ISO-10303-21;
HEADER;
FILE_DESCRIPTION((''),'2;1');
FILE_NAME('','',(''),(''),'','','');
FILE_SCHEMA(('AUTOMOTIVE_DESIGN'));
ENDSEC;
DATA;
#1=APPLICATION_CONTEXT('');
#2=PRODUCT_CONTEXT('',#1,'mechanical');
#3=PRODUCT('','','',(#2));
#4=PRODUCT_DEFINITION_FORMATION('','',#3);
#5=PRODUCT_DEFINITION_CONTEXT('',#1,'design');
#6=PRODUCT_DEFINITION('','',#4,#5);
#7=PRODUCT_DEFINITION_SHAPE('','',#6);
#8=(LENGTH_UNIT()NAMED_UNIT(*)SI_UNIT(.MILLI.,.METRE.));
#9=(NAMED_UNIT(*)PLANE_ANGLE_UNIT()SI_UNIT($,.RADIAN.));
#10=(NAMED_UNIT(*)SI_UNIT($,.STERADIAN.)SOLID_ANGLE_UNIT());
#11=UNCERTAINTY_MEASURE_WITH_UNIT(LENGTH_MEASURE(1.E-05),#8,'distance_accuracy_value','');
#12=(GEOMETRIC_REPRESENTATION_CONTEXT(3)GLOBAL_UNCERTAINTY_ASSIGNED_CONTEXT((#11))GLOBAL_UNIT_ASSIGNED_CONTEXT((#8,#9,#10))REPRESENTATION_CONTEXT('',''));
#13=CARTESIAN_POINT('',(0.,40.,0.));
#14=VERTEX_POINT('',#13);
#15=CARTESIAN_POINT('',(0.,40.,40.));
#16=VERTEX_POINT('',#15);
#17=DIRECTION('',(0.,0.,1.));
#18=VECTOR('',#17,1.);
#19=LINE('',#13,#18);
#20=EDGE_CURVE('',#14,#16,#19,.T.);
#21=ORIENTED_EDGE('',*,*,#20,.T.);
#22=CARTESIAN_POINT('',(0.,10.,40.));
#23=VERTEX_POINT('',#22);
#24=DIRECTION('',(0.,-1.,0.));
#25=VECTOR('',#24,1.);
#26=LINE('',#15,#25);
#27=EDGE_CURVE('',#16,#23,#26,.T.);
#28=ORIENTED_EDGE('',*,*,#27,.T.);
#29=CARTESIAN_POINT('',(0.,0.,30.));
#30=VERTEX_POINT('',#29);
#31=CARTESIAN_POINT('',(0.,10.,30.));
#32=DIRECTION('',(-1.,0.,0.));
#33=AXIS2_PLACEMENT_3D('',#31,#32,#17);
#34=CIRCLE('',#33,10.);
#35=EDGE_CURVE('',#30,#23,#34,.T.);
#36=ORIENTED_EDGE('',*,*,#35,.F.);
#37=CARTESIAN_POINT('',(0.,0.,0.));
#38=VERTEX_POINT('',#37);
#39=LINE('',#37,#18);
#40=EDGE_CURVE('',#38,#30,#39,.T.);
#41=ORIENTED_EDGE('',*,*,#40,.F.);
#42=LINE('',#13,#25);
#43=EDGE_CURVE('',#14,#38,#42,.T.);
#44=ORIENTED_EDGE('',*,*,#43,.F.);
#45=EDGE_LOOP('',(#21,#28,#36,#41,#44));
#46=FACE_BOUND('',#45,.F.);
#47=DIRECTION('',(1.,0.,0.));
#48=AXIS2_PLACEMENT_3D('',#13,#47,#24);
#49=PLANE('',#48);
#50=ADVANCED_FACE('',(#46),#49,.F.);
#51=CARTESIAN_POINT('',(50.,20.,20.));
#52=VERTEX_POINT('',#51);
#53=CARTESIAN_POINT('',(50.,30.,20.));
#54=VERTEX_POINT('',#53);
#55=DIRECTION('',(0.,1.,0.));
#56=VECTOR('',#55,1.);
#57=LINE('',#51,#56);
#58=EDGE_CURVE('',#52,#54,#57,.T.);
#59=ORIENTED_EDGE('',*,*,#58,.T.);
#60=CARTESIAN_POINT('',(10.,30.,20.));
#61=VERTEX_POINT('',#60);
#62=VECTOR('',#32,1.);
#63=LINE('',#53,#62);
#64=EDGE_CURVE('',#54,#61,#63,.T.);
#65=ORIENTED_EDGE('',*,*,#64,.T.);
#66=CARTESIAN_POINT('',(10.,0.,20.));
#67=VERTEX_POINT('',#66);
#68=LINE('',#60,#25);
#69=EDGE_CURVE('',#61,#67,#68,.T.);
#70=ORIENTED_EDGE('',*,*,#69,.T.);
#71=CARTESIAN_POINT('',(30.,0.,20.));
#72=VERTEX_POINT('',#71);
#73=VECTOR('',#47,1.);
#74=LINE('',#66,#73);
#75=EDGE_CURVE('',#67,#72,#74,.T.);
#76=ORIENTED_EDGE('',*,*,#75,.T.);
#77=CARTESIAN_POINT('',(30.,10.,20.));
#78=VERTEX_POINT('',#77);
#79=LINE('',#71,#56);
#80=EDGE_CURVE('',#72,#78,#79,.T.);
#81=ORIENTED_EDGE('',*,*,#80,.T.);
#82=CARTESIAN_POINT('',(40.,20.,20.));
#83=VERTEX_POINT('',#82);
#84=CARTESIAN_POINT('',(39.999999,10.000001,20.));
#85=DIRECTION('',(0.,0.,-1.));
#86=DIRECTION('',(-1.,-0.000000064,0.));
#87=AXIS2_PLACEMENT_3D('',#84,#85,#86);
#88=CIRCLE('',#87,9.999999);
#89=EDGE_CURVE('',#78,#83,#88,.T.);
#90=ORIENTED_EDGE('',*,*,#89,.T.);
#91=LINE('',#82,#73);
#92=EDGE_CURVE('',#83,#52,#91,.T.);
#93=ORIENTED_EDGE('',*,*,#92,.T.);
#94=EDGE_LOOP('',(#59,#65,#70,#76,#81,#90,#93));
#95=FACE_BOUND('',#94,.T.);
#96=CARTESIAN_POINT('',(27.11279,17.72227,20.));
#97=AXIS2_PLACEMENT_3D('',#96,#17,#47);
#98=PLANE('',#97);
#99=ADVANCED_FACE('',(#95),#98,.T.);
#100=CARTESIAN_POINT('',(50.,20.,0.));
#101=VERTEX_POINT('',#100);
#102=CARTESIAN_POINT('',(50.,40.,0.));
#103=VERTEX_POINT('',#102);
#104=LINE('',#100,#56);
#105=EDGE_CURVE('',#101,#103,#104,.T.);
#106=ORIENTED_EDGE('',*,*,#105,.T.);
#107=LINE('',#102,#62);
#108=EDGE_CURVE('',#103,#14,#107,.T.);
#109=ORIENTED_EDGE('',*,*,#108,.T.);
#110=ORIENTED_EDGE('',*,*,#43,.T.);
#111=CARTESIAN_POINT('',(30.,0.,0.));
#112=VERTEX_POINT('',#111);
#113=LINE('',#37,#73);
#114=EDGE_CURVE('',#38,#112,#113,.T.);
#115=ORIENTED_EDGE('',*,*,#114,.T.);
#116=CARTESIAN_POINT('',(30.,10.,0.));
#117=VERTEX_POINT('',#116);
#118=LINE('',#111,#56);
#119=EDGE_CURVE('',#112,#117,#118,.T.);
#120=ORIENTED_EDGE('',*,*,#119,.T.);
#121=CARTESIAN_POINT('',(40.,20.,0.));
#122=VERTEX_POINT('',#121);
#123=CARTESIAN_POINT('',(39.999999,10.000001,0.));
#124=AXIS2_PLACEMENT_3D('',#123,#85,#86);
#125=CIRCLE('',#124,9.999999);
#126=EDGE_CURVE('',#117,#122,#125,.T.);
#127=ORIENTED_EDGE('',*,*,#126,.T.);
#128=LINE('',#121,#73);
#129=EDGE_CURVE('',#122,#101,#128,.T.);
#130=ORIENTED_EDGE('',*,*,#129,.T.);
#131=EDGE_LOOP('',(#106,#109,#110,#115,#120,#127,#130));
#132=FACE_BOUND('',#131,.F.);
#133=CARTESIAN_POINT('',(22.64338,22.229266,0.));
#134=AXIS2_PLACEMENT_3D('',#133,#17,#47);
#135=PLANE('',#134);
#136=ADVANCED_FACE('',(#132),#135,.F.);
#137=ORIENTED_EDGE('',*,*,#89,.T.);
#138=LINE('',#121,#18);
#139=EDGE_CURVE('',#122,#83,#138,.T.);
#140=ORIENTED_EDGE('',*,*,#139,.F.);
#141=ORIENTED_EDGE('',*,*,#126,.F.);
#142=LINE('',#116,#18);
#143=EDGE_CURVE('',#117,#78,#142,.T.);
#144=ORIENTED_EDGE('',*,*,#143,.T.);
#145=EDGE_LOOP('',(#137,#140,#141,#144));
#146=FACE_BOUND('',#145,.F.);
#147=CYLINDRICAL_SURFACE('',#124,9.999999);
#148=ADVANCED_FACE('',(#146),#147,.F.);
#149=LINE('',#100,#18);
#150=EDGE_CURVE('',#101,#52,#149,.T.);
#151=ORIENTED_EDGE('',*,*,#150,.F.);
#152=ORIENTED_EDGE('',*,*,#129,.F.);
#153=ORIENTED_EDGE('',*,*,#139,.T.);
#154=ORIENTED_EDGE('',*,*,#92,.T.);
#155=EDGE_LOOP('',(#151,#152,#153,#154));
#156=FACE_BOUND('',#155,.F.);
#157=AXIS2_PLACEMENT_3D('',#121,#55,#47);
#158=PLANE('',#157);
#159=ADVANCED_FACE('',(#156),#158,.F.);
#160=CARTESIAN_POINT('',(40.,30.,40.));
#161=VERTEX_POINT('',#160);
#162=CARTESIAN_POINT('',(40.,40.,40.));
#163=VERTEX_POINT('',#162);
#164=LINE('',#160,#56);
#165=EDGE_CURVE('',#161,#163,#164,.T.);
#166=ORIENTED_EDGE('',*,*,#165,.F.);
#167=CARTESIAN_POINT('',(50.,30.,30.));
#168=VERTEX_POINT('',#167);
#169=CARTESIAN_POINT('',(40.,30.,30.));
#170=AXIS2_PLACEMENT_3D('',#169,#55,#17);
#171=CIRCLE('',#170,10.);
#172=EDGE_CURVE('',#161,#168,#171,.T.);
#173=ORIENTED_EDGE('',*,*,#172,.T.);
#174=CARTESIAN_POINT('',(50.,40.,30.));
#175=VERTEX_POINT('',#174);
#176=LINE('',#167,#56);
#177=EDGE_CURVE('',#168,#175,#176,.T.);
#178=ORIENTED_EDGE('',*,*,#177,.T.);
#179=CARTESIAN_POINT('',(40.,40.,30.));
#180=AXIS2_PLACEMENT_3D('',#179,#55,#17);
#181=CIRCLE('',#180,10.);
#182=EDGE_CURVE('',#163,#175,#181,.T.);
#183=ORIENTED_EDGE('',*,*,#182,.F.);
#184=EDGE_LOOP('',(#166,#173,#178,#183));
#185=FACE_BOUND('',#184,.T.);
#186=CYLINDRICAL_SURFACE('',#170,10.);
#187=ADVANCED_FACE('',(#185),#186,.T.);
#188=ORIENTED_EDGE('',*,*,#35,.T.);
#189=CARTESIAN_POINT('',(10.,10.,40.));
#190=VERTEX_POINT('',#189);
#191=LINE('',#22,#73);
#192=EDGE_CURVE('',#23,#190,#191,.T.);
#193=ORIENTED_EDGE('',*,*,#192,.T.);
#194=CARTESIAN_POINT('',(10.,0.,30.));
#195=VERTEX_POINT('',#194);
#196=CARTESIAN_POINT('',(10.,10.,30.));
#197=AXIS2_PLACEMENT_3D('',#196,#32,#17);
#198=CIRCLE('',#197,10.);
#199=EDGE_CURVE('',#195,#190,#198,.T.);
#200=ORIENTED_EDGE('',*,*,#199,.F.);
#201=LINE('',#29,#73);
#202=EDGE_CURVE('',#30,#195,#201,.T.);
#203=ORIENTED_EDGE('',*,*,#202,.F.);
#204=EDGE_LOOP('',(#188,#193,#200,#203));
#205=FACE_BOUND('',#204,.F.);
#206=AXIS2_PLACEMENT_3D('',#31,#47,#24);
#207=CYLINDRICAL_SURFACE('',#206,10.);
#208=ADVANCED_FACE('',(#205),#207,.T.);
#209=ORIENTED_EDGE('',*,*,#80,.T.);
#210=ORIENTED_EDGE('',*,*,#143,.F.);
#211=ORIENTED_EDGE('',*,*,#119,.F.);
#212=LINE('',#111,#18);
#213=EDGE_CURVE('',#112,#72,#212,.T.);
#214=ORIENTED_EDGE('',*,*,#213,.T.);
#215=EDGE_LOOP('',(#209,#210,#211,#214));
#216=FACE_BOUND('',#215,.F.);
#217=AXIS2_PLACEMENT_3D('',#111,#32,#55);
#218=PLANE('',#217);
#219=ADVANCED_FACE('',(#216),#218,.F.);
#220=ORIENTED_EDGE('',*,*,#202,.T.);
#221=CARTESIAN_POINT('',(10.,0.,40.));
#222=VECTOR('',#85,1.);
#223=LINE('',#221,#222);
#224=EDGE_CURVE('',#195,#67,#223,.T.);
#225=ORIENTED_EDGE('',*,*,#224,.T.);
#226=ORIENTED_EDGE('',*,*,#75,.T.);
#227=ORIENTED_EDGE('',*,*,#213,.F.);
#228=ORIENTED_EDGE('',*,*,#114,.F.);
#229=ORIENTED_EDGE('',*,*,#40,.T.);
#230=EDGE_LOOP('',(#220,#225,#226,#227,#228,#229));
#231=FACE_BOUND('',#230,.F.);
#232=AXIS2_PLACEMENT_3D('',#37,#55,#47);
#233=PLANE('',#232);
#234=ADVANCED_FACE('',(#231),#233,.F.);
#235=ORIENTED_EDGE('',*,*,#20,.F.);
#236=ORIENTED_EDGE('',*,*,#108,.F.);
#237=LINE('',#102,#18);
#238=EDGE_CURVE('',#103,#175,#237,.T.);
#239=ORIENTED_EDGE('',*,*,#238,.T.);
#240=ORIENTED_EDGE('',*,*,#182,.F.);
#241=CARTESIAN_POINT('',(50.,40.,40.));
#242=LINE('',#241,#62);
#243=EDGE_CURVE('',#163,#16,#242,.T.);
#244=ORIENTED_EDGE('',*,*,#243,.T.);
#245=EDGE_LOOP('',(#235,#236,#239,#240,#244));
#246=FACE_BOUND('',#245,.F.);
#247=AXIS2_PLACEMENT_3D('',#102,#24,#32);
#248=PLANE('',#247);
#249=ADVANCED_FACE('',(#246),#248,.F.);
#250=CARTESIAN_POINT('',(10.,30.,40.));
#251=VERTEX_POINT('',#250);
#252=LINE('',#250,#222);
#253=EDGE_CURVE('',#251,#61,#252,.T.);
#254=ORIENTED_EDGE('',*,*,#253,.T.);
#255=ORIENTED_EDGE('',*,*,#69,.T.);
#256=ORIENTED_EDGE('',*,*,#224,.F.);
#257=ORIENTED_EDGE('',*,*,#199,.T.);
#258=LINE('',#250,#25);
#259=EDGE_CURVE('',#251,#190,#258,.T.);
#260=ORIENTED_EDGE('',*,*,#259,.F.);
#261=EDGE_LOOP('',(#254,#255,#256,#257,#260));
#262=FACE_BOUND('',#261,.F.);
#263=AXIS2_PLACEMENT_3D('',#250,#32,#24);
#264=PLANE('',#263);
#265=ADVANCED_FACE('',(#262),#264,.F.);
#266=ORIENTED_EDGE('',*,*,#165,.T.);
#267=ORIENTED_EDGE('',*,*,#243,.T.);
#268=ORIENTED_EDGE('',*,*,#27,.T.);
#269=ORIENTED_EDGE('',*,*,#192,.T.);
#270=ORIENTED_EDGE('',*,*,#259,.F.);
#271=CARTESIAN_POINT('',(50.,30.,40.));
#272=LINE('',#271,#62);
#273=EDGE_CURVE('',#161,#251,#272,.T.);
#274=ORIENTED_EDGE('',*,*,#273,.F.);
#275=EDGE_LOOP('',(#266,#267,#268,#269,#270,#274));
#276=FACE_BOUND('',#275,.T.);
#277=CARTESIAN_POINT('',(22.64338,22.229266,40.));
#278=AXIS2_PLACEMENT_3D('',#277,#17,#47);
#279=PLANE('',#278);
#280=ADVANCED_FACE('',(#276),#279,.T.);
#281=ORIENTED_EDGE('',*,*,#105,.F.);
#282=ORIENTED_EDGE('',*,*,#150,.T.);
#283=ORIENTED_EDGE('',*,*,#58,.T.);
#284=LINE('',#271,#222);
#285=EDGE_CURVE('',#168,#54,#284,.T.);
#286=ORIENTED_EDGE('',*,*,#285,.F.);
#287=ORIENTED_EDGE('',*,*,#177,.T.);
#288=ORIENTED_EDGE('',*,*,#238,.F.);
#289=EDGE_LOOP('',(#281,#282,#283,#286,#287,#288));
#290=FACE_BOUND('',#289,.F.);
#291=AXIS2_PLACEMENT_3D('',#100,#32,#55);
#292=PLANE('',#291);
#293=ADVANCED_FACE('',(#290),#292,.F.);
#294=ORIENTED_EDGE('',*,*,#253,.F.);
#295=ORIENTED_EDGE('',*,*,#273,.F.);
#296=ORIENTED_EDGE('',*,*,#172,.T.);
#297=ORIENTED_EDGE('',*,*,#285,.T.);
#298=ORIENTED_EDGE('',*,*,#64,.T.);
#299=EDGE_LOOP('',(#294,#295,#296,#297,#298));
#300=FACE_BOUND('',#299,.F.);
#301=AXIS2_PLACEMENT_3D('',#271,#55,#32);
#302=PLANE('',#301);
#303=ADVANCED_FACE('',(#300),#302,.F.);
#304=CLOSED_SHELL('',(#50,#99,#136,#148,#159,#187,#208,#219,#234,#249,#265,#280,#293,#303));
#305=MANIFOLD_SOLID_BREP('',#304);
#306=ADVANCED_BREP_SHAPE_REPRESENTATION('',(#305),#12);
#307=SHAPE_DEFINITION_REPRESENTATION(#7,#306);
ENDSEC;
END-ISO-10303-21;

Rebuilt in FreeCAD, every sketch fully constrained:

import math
import FreeCAD as App
import Part
import Sketcher


def edges_at(feature, points):
    """Names of the edges that pass closest to the given points."""
    edges = feature.Shape.Edges
    near = lambda p: min(range(len(edges)), key=lambda i: edges[i].distToShape(Part.Vertex(*p))[0])
    return sorted({f"Edge{near(p) + 1}" for p in points})

doc = App.newDocument("Part")
body = doc.addObject("PartDesign::Body", "Body")

# Sketch on XY plane
sketch1 = body.newObject("Sketcher::SketchObject", "Sketch")
sketch1.AttachmentSupport = (doc.getObject("XY_Plane"), [""])
sketch1.MapMode = "FlatFace"
sketch1.addGeometry(Part.LineSegment(App.Vector(0, 40, 0), App.Vector(0, 0, 0)), False)
sketch1.addGeometry(Part.LineSegment(App.Vector(0, 0, 0), App.Vector(30, 0, 0)), False)
sketch1.addGeometry(Part.LineSegment(App.Vector(30, 0, 0), App.Vector(30, 10, 0)), False)
sketch1.addGeometry(Part.ArcOfCircle(Part.Circle(App.Vector(40, 10, 0), App.Vector(0, 0, 1), 10), math.radians(90), math.radians(180)), False)
sketch1.addGeometry(Part.LineSegment(App.Vector(40, 20, 0), App.Vector(50, 20, 0)), False)
sketch1.addGeometry(Part.LineSegment(App.Vector(50, 20, 0), App.Vector(50, 40, 0)), False)
sketch1.addGeometry(Part.LineSegment(App.Vector(50, 40, 0), App.Vector(0, 40, 0)), False)
sketch1.addConstraint(Sketcher.Constraint("Coincident", 0, 2, 1, 1))
sketch1.addConstraint(Sketcher.Constraint("Coincident", 1, 2, 2, 1))
sketch1.addConstraint(Sketcher.Constraint("Tangent", 2, 2, 3, 2))
sketch1.addConstraint(Sketcher.Constraint("Tangent", 3, 1, 4, 1))
sketch1.addConstraint(Sketcher.Constraint("Coincident", 4, 2, 5, 1))
sketch1.addConstraint(Sketcher.Constraint("Coincident", 5, 2, 6, 1))
sketch1.addConstraint(Sketcher.Constraint("Coincident", 6, 2, 0, 1))
sketch1.addConstraint(Sketcher.Constraint("Vertical", 0))
sketch1.addConstraint(Sketcher.Constraint("Horizontal", 1))
sketch1.addConstraint(Sketcher.Constraint("Vertical", 2))
sketch1.addConstraint(Sketcher.Constraint("Horizontal", 4))
sketch1.addConstraint(Sketcher.Constraint("Vertical", 5))
sketch1.addConstraint(Sketcher.Constraint("Horizontal", 6))
sketch1.addConstraint(Sketcher.Constraint("Coincident", 0, 2, -1, 1))
sketch1.addConstraint(Sketcher.Constraint("Equal", 4, 2))
sketch1.addConstraint(Sketcher.Constraint("Radius", 3, 9.999999))
sketch1.addConstraint(Sketcher.Constraint("DistanceX", 1, 1, 1, 2, 30.0))
sketch1.addConstraint(Sketcher.Constraint("DistanceX", 4, 1, 4, 2, 10.0))
sketch1.addConstraint(Sketcher.Constraint("DistanceY", 0, 2, 0, 1, 40.0))
pad1 = body.newObject("PartDesign::Pad", "Pad")
pad1.Profile = sketch1
pad1.Length = 40

# Sketch on XY plane
sketch2 = body.newObject("Sketcher::SketchObject", "Sketch001")
sketch2.AttachmentSupport = (doc.getObject("XY_Plane"), [""])
sketch2.MapMode = "FlatFace"
sketch2.AttachmentOffset = App.Placement(App.Vector(0, 0, 40), App.Rotation())
sketch2.addGeometry(Part.LineSegment(App.Vector(50, 20, 0), App.Vector(50, 30, 0)), False)
sketch2.addGeometry(Part.LineSegment(App.Vector(50, 30, 0), App.Vector(10, 30, 0)), False)
sketch2.addGeometry(Part.LineSegment(App.Vector(10, 30, 0), App.Vector(10, 0, 0)), False)
sketch2.addGeometry(Part.LineSegment(App.Vector(10, 0, 0), App.Vector(30, 0, 0)), False)
sketch2.addGeometry(Part.LineSegment(App.Vector(30, 0, 0), App.Vector(30, 10, 0)), False)
sketch2.addGeometry(Part.ArcOfCircle(Part.Circle(App.Vector(40, 10, 0), App.Vector(0, 0, 1), 10), math.radians(90), math.radians(180)), False)
sketch2.addGeometry(Part.LineSegment(App.Vector(40, 20, 0), App.Vector(50, 20, 0)), False)
sketch2.addConstraint(Sketcher.Constraint("Coincident", 0, 2, 1, 1))
sketch2.addConstraint(Sketcher.Constraint("Coincident", 1, 2, 2, 1))
sketch2.addConstraint(Sketcher.Constraint("Coincident", 2, 2, 3, 1))
sketch2.addConstraint(Sketcher.Constraint("Coincident", 3, 2, 4, 1))
sketch2.addConstraint(Sketcher.Constraint("Tangent", 4, 2, 5, 2))
sketch2.addConstraint(Sketcher.Constraint("Tangent", 5, 1, 6, 1))
sketch2.addConstraint(Sketcher.Constraint("Coincident", 6, 2, 0, 1))
sketch2.addConstraint(Sketcher.Constraint("Vertical", 0))
sketch2.addConstraint(Sketcher.Constraint("Horizontal", 1))
sketch2.addConstraint(Sketcher.Constraint("Vertical", 2))
sketch2.addConstraint(Sketcher.Constraint("Horizontal", 3))
sketch2.addConstraint(Sketcher.Constraint("Vertical", 4))
sketch2.addConstraint(Sketcher.Constraint("Horizontal", 6))
sketch2.addConstraint(Sketcher.Constraint("PointOnObject", 2, 2, -1))
sketch2.addConstraint(Sketcher.Constraint("Equal", 6, 0))
sketch2.addConstraint(Sketcher.Constraint("Equal", 0, 4))
sketch2.addConstraint(Sketcher.Constraint("Radius", 5, 9.999999))
sketch2.addConstraint(Sketcher.Constraint("DistanceX", 1, 2, 1, 1, 40.0))
sketch2.addConstraint(Sketcher.Constraint("DistanceX", 3, 1, 3, 2, 20.0))
sketch2.addConstraint(Sketcher.Constraint("DistanceX", -1, 1, 5, 3, 39.999999))
pocket1 = body.newObject("PartDesign::Pocket", "Pocket")
pocket1.Profile = sketch2
pocket1.Length = 20
doc.recompute()

fillet = body.newObject("PartDesign::Fillet", "Fillet")
fillet.Base = (pocket1, edges_at(pocket1, [(50, 35, 40), (5, 0, 40)]))
fillet.Radius = 10

doc.recompute()
